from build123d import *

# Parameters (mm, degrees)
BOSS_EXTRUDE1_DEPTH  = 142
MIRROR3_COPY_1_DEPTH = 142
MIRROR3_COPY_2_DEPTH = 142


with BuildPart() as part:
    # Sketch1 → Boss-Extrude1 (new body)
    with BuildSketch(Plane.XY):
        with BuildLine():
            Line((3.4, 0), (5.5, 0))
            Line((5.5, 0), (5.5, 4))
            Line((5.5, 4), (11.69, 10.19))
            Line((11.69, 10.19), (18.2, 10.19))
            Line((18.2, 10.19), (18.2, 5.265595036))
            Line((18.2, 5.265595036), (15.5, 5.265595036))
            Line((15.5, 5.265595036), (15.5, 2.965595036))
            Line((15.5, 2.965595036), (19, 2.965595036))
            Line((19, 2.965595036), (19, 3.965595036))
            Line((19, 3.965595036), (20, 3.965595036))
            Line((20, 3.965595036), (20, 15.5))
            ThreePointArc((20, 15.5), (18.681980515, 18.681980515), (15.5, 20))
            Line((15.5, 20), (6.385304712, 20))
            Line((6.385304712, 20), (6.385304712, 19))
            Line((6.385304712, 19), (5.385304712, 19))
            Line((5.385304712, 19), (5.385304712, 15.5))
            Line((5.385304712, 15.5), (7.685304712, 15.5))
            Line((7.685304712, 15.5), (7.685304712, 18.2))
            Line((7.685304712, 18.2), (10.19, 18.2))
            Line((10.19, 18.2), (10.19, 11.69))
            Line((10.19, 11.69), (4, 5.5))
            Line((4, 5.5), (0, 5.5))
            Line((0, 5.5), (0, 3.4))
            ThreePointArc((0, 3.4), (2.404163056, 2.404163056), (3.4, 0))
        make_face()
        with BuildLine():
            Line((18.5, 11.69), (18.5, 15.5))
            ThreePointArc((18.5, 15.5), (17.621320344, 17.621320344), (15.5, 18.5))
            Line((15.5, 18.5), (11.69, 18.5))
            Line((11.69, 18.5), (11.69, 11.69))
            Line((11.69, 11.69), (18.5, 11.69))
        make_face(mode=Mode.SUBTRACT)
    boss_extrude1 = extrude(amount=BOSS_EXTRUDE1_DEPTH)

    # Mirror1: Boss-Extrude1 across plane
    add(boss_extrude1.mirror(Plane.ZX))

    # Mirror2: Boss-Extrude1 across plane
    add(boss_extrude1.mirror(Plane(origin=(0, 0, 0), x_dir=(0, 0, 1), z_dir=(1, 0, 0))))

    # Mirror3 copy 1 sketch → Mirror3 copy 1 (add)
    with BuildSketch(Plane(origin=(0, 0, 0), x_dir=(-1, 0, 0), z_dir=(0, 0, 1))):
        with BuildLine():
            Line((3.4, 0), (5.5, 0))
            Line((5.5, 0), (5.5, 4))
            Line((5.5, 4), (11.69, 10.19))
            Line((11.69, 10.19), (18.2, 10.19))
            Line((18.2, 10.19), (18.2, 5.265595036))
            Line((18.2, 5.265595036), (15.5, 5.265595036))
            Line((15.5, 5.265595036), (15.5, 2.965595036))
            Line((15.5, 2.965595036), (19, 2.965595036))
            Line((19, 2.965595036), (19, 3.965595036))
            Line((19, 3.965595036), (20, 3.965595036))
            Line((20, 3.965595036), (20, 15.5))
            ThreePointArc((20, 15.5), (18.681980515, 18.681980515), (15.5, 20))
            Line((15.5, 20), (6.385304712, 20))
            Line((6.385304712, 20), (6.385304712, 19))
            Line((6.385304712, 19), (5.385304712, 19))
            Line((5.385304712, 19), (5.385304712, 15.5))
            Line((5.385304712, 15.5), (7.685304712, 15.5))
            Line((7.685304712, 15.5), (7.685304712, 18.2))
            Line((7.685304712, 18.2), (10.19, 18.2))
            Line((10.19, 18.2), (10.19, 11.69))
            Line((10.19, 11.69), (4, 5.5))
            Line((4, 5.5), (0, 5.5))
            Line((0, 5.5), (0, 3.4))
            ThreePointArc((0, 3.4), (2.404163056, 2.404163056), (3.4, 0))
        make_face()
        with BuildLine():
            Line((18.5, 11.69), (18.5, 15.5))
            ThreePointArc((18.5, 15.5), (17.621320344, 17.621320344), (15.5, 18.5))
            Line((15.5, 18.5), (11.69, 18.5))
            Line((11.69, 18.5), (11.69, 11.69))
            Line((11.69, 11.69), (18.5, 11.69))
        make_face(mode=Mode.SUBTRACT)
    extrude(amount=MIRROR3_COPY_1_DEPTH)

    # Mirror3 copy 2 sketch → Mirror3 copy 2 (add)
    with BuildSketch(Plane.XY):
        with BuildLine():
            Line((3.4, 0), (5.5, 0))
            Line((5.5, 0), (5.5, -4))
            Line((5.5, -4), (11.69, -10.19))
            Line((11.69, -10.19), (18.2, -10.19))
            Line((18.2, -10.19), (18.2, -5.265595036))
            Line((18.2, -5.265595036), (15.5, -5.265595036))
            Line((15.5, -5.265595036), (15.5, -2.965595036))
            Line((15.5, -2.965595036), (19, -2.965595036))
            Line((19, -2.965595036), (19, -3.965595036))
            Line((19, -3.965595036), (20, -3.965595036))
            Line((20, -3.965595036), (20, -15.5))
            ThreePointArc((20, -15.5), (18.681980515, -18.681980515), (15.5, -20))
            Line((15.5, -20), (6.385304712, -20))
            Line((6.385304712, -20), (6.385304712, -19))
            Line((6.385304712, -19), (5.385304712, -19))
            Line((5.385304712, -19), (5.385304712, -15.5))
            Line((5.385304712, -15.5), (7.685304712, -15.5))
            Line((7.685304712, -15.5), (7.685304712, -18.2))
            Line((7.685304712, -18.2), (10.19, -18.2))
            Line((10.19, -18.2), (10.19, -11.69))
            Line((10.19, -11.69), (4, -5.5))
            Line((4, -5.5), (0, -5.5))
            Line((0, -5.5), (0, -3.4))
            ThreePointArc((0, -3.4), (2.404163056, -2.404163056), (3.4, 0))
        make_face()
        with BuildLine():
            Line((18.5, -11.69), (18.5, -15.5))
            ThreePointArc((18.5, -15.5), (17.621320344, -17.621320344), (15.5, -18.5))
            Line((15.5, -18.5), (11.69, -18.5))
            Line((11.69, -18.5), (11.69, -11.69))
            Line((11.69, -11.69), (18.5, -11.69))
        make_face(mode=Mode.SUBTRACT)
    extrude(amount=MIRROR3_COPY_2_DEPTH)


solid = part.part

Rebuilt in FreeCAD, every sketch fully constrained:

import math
import FreeCAD as App
import Part
import Sketcher
Q = App.Units.Quantity

doc = App.newDocument("Part")
body = doc.addObject("PartDesign::Body", "Body")

# Sketch on XY plane
sketch1 = body.newObject("Sketcher::SketchObject", "Sketch")
sketch1.AttachmentSupport = (doc.getObject("XY_Plane"), [""])
sketch1.MapMode = "FlatFace"
sketch1.addGeometry(Part.LineSegment(App.Vector(3.4, 0, 0), App.Vector(5.5, 0, 0)), False)
sketch1.addGeometry(Part.LineSegment(App.Vector(5.5, 0, 0), App.Vector(5.5, 4, 0)), False)
sketch1.addGeometry(Part.LineSegment(App.Vector(5.5, 4, 0), App.Vector(11.7, 10.2, 0)), False)
sketch1.addGeometry(Part.LineSegment(App.Vector(11.7, 10.2, 0), App.Vector(18.2, 10.2, 0)), False)
sketch1.addGeometry(Part.LineSegment(App.Vector(18.2, 10.2, 0), App.Vector(18.2, 5.3, 0)), False)
sketch1.addGeometry(Part.LineSegment(App.Vector(18.2, 5.3, 0), App.Vector(15.5, 5.3, 0)), False)
sketch1.addGeometry(Part.LineSegment(App.Vector(15.5, 5.3, 0), App.Vector(15.5, 3, 0)), False)
sketch1.addGeometry(Part.LineSegment(App.Vector(15.5, 3, 0), App.Vector(19, 3, 0)), False)
sketch1.addGeometry(Part.LineSegment(App.Vector(19, 3, 0), App.Vector(19, 4, 0)), False)
sketch1.addGeometry(Part.LineSegment(App.Vector(19, 4, 0), App.Vector(20, 4, 0)), False)
sketch1.addGeometry(Part.LineSegment(App.Vector(20, 4, 0), App.Vector(20, 15.5, 0)), False)
sketch1.addGeometry(Part.ArcOfCircle(Part.Circle(App.Vector(15.5, 15.5, 0), App.Vector(0, 0, 1), 4.5), math.radians(0), math.radians(90)), False)
sketch1.addGeometry(Part.LineSegment(App.Vector(15.5, 20, 0), App.Vector(6.4, 20, 0)), False)
sketch1.addGeometry(Part.LineSegment(App.Vector(6.4, 20, 0), App.Vector(6.4, 19, 0)), False)
sketch1.addGeometry(Part.LineSegment(App.Vector(6.4, 19, 0), App.Vector(5.4, 19, 0)), False)
sketch1.addGeometry(Part.LineSegment(App.Vector(5.4, 19, 0), App.Vector(5.4, 15.5, 0)), False)
sketch1.addGeometry(Part.LineSegment(App.Vector(5.4, 15.5, 0), App.Vector(7.7, 15.5, 0)), False)
sketch1.addGeometry(Part.LineSegment(App.Vector(7.7, 15.5, 0), App.Vector(7.7, 18.2, 0)), False)
sketch1.addGeometry(Part.LineSegment(App.Vector(7.7, 18.2, 0), App.Vector(10.2, 18.2, 0)), False)
sketch1.addGeometry(Part.LineSegment(App.Vector(10.2, 18.2, 0), App.Vector(10.2, 11.7, 0)), False)
sketch1.addGeometry(Part.LineSegment(App.Vector(10.2, 11.7, 0), App.Vector(4, 5.5, 0)), False)
sketch1.addGeometry(Part.LineSegment(App.Vector(4, 5.5, 0), App.Vector(0, 5.5, 0)), False)
sketch1.addGeometry(Part.LineSegment(App.Vector(0, 5.5, 0), App.Vector(0, 3.4, 0)), False)
sketch1.addGeometry(Part.ArcOfCircle(Part.Circle(App.Vector(0, 0, 0), App.Vector(0, 0, 1), 3.4), math.radians(0), math.radians(90)), False)
sketch1.addGeometry(Part.LineSegment(App.Vector(18.5, 15.5, 0), App.Vector(18.5, 11.7, 0)), False)
sketch1.addGeometry(Part.LineSegment(App.Vector(18.5, 11.7, 0), App.Vector(11.7, 11.7, 0)), False)
sketch1.addGeometry(Part.LineSegment(App.Vector(11.7, 11.7, 0), App.Vector(11.7, 18.5, 0)), False)
sketch1.addGeometry(Part.LineSegment(App.Vector(11.7, 18.5, 0), App.Vector(15.5, 18.5, 0)), False)
sketch1.addGeometry(Part.ArcOfCircle(Part.Circle(App.Vector(15.5, 15.5, 0), App.Vector(0, 0, 1), 3), math.radians(0), math.radians(90)), False)
sketch1.addConstraint(Sketcher.Constraint("Coincident", 0, 2, 1, 1))
sketch1.addConstraint(Sketcher.Constraint("Coincident", 1, 2, 2, 1))
sketch1.addConstraint(Sketcher.Constraint("Coincident", 2, 2, 3, 1))
sketch1.addConstraint(Sketcher.Constraint("Coincident", 3, 2, 4, 1))
sketch1.addConstraint(Sketcher.Constraint("Coincident", 4, 2, 5, 1))
sketch1.addConstraint(Sketcher.Constraint("Coincident", 5, 2, 6, 1))
sketch1.addConstraint(Sketcher.Constraint("Coincident", 6, 2, 7, 1))
sketch1.addConstraint(Sketcher.Constraint("Coincident", 7, 2, 8, 1))
sketch1.addConstraint(Sketcher.Constraint("Coincident", 8, 2, 9, 1))
sketch1.addConstraint(Sketcher.Constraint("Coincident", 9, 2, 10, 1))
sketch1.addConstraint(Sketcher.Constraint("Tangent", 10, 2, 11, 1))
sketch1.addConstraint(Sketcher.Constraint("Tangent", 11, 2, 12, 1))
sketch1.addConstraint(Sketcher.Constraint("Coincident", 12, 2, 13, 1))
sketch1.addConstraint(Sketcher.Constraint("Coincident", 13, 2, 14, 1))
sketch1.addConstraint(Sketcher.Constraint("Coincident", 14, 2, 15, 1))
sketch1.addConstraint(Sketcher.Constraint("Coincident", 15, 2, 16, 1))
sketch1.addConstraint(Sketcher.Constraint("Coincident", 16, 2, 17, 1))
sketch1.addConstraint(Sketcher.Constraint("Coincident", 17, 2, 18, 1))
sketch1.addConstraint(Sketcher.Constraint("Coincident", 18, 2, 19, 1))
sketch1.addConstraint(Sketcher.Constraint("Coincident", 19, 2, 20, 1))
sketch1.addConstraint(Sketcher.Constraint("Coincident", 20, 2, 21, 1))
sketch1.addConstraint(Sketcher.Constraint("Coincident", 21, 2, 22, 1))
sketch1.addConstraint(Sketcher.Constraint("Coincident", 22, 2, 23, 2))
sketch1.addConstraint(Sketcher.Constraint("Coincident", 23, 1, 0, 1))
sketch1.addConstraint(Sketcher.Constraint("Coincident", 24, 2, 25, 1))
sketch1.addConstraint(Sketcher.Constraint("Coincident", 25, 2, 26, 1))
sketch1.addConstraint(Sketcher.Constraint("Coincident", 26, 2, 27, 1))
sketch1.addConstraint(Sketcher.Constraint("Tangent", 27, 2, 28, 2))
sketch1.addConstraint(Sketcher.Constraint("Tangent", 28, 1, 24, 1))
sketch1.addConstraint(Sketcher.Constraint("Horizontal", 0))
sketch1.addConstraint(Sketcher.Constraint("Vertical", 1))
sketch1.addConstraint(Sketcher.Constraint("Horizontal", 3))
sketch1.addConstraint(Sketcher.Constraint("Vertical", 4))
sketch1.addConstraint(Sketcher.Constraint("Horizontal", 5))
sketch1.addConstraint(Sketcher.Constraint("Vertical", 6))
sketch1.addConstraint(Sketcher.Constraint("Horizontal", 7))
sketch1.addConstraint(Sketcher.Constraint("Vertical", 8))
sketch1.addConstraint(Sketcher.Constraint("Horizontal", 9))
sketch1.addConstraint(Sketcher.Constraint("Vertical", 10))
sketch1.addConstraint(Sketcher.Constraint("Horizontal", 12))
sketch1.addConstraint(Sketcher.Constraint("Vertical", 13))
sketch1.addConstraint(Sketcher.Constraint("Horizontal", 14))
sketch1.addConstraint(Sketcher.Constraint("Vertical", 15))
sketch1.addConstraint(Sketcher.Constraint("Horizontal", 16))
sketch1.addConstraint(Sketcher.Constraint("Vertical", 17))
sketch1.addConstraint(Sketcher.Constraint("Horizontal", 18))
sketch1.addConstraint(Sketcher.Constraint("Vertical", 19))
sketch1.addConstraint(Sketcher.Constraint("Horizontal", 21))
sketch1.addConstraint(Sketcher.Constraint("Vertical", 22))
sketch1.addConstraint(Sketcher.Constraint("Vertical", 24))
sketch1.addConstraint(Sketcher.Constraint("Horizontal", 25))
sketch1.addConstraint(Sketcher.Constraint("Vertical", 26))
sketch1.addConstraint(Sketcher.Constraint("Horizontal", 27))
sketch1.addConstraint(Sketcher.Constraint("Coincident", 23, 3, -1, 1))
sketch1.addConstraint(Sketcher.Constraint("Coincident", 28, 3, 11, 3))
sketch1.addConstraint(Sketcher.Constraint("PointOnObject", 0, 2, -1))
sketch1.addConstraint(Sketcher.Constraint("PointOnObject", 21, 2, -2))
sketch1.addConstraint(Sketcher.Constraint("Parallel", 2, 20))
sketch1.addConstraint(Sketcher.Constraint("Horizontal", 10, 2, 15, 2))
sketch1.addConstraint(Sketcher.Constraint("Horizontal", 19, 2, 24, 2))
sketch1.addConstraint(Sketcher.Constraint("Vertical", 28, 3, 5, 2))
sketch1.addConstraint(Sketcher.Constraint("Vertical", 2, 2, 25, 2))
sketch1.addConstraint(Sketcher.Constraint("Equal", 9, 14))
sketch1.addConstraint(Sketcher.Constraint("Equal", 21, 1))
sketch1.addConstraint(Sketcher.Constraint("Equal", 16, 6))
sketch1.addConstraint(Sketcher.Constraint("Equal", 14, 8))
sketch1.addConstraint(Sketcher.Constraint("Equal", 8, 13))
sketch1.addConstraint(Sketcher.Constraint("Equal", 5, 17))
sketch1.addConstraint(Sketcher.Constraint("Equal", 3, 19))
sketch1.addConstraint(Sketcher.Constraint("Equal", 0, 22))
sketch1.addConstraint(Sketcher.Constraint("Equal", 2, 20))
sketch1.addConstraint(Sketcher.Constraint("Radius", 28, 3.0))
sketch1.addConstraint(Sketcher.Constraint("Radius", 11, 4.5))
sketch1.addConstraint(Sketcher.Constraint("Radius", 23, 3.4))
sketch1.addConstraint(Sketcher.Constraint("DistanceX", 9, 1, 9, 2, 1.0))
sketch1.addConstraint(Sketcher.Constraint("DistanceX", 21, 2, 21, 1, 4.0))
sketch1.addConstraint(Sketcher.Constraint("Angle", 2, Q("45 deg")))
sketch1.addConstraint(Sketcher.Constraint("DistanceX", 0, 1, 0, 2, 2.1))
sketch1.addConstraint(Sketcher.Constraint("DistanceX", 5, 2, 5, 1, 2.7))
sketch1.addConstraint(Sketcher.Constraint("DistanceX", 16, 1, 16, 2, 2.3))
sketch1.addConstraint(Sketcher.Constraint("DistanceX", -1, 1, 7, 2, 19.0))
sketch1.addConstraint(Sketcher.Constraint("DistanceX", 3, 1, 3, 2, 6.51))
sketch1.addConstraint(Sketcher.Constraint("DistanceX", 12, 2, 12, 1, 9.114695))
sketch1.addConstraint(Sketcher.Constraint("DistanceY", 4, 2, 4, 1, 4.924405))
pad1 = body.newObject("PartDesign::Pad", "Pad")
pad1.Profile = sketch1
pad1.Length = 142
doc.recompute()

mirrored = body.newObject("PartDesign::Mirrored", "Mirrored")
mirrored.Originals = [pad1]
mirrored.MirrorPlane = (doc.getObject("XZ_Plane"), [""])
body.Tip = mirrored
doc.recompute()

mirrored2 = body.newObject("PartDesign::Mirrored", "Mirrored001")
mirrored2.Originals = [pad1]
mirrored2.MirrorPlane = (doc.getObject("YZ_Plane"), [""])
body.Tip = mirrored2

# Sketch on XY plane
sketch2 = body.newObject("Sketcher::SketchObject", "Sketch001")
sketch2.AttachmentSupport = (doc.getObject("XY_Plane"), [""])
sketch2.MapMode = "FlatFace"
sketch2.addGeometry(Part.LineSegment(App.Vector(-3.4, 0, 0), App.Vector(-5.5, 0, 0)), False)
sketch2.addGeometry(Part.LineSegment(App.Vector(-5.5, 0, 0), App.Vector(-5.5, -4, 0)), False)
sketch2.addGeometry(Part.LineSegment(App.Vector(-5.5, -4, 0), App.Vector(-11.7, -10.2, 0)), False)
sketch2.addGeometry(Part.LineSegment(App.Vector(-11.7, -10.2, 0), App.Vector(-18.2, -10.2, 0)), False)
sketch2.addGeometry(Part.LineSegment(App.Vector(-18.2, -10.2, 0), App.Vector(-18.2, -5.3, 0)), False)
sketch2.addGeometry(Part.LineSegment(App.Vector(-18.2, -5.3, 0), App.Vector(-15.5, -5.3, 0)), False)
sketch2.addGeometry(Part.LineSegment(App.Vector(-15.5, -5.3, 0), App.Vector(-15.5, -3, 0)), False)
sketch2.addGeometry(Part.LineSegment(App.Vector(-15.5, -3, 0), App.Vector(-19, -3, 0)), False)
sketch2.addGeometry(Part.LineSegment(App.Vector(-19, -3, 0), App.Vector(-19, -4, 0)), False)
sketch2.addGeometry(Part.LineSegment(App.Vector(-19, -4, 0), App.Vector(-20, -4, 0)), False)
sketch2.addGeometry(Part.LineSegment(App.Vector(-20, -4, 0), App.Vector(-20, -15.5, 0)), False)
sketch2.addGeometry(Part.ArcOfCircle(Part.Circle(App.Vector(-15.5, -15.5, 0), App.Vector(0, 0, 1), 4.5), math.radians(-180), math.radians(-90)), False)
sketch2.addGeometry(Part.LineSegment(App.Vector(-15.5, -20, 0), App.Vector(-6.4, -20, 0)), False)
sketch2.addGeometry(Part.LineSegment(App.Vector(-6.4, -20, 0), App.Vector(-6.4, -19, 0)), False)
sketch2.addGeometry(Part.LineSegment(App.Vector(-6.4, -19, 0), App.Vector(-5.4, -19, 0)), False)
sketch2.addGeometry(Part.LineSegment(App.Vector(-5.4, -19, 0), App.Vector(-5.4, -15.5, 0)), False)
sketch2.addGeometry(Part.LineSegment(App.Vector(-5.4, -15.5, 0), App.Vector(-7.7, -15.5, 0)), False)
sketch2.addGeometry(Part.LineSegment(App.Vector(-7.7, -15.5, 0), App.Vector(-7.7, -18.2, 0)), False)
sketch2.addGeometry(Part.LineSegment(App.Vector(-7.7, -18.2, 0), App.Vector(-10.2, -18.2, 0)), False)
sketch2.addGeometry(Part.LineSegment(App.Vector(-10.2, -18.2, 0), App.Vector(-10.2, -11.7, 0)), False)
sketch2.addGeometry(Part.LineSegment(App.Vector(-10.2, -11.7, 0), App.Vector(-4, -5.5, 0)), False)
sketch2.addGeometry(Part.LineSegment(App.Vector(-4, -5.5, 0), App.Vector(0, -5.5, 0)), False)
sketch2.addGeometry(Part.LineSegment(App.Vector(0, -5.5, 0), App.Vector(0, -3.4, 0)), False)
sketch2.addGeometry(Part.ArcOfCircle(Part.Circle(App.Vector(0, 0, 0), App.Vector(0, 0, 1), 3.4), math.radians(180), math.radians(270)), False)
sketch2.addGeometry(Part.LineSegment(App.Vector(-18.5, -15.5, 0), App.Vector(-18.5, -11.7, 0)), False)
sketch2.addGeometry(Part.LineSegment(App.Vector(-18.5, -11.7, 0), App.Vector(-11.7, -11.7, 0)), False)
sketch2.addGeometry(Part.LineSegment(App.Vector(-11.7, -11.7, 0), App.Vector(-11.7, -18.5, 0)), False)
sketch2.addGeometry(Part.LineSegment(App.Vector(-11.7, -18.5, 0), App.Vector(-15.5, -18.5, 0)), False)
sketch2.addGeometry(Part.ArcOfCircle(Part.Circle(App.Vector(-15.5, -15.5, 0), App.Vector(0, 0, 1), 3), math.radians(180), math.radians(270)), False)
sketch2.addConstraint(Sketcher.Constraint("Coincident", 0, 2, 1, 1))
sketch2.addConstraint(Sketcher.Constraint("Coincident", 1, 2, 2, 1))
sketch2.addConstraint(Sketcher.Constraint("Coincident", 2, 2, 3, 1))
sketch2.addConstraint(Sketcher.Constraint("Coincident", 3, 2, 4, 1))
sketch2.addConstraint(Sketcher.Constraint("Coincident", 4, 2, 5, 1))
sketch2.addConstraint(Sketcher.Constraint("Coincident", 5, 2, 6, 1))
sketch2.addConstraint(Sketcher.Constraint("Coincident", 6, 2, 7, 1))
sketch2.addConstraint(Sketcher.Constraint("Coincident", 7, 2, 8, 1))
sketch2.addConstraint(Sketcher.Constraint("Coincident", 8, 2, 9, 1))
sketch2.addConstraint(Sketcher.Constraint("Coincident", 9, 2, 10, 1))
sketch2.addConstraint(Sketcher.Constraint("Tangent", 10, 2, 11, 1))
sketch2.addConstraint(Sketcher.Constraint("Tangent", 11, 2, 12, 1))
sketch2.addConstraint(Sketcher.Constraint("Coincident", 12, 2, 13, 1))
sketch2.addConstraint(Sketcher.Constraint("Coincident", 13, 2, 14, 1))
sketch2.addConstraint(Sketcher.Constraint("Coincident", 14, 2, 15, 1))
sketch2.addConstraint(Sketcher.Constraint("Coincident", 15, 2, 16, 1))
sketch2.addConstraint(Sketcher.Constraint("Coincident", 16, 2, 17, 1))
sketch2.addConstraint(Sketcher.Constraint("Coincident", 17, 2, 18, 1))
sketch2.addConstraint(Sketcher.Constraint("Coincident", 18, 2, 19, 1))
sketch2.addConstraint(Sketcher.Constraint("Coincident", 19, 2, 20, 1))
sketch2.addConstraint(Sketcher.Constraint("Coincident", 20, 2, 21, 1))
sketch2.addConstraint(Sketcher.Constraint("Coincident", 21, 2, 22, 1))
sketch2.addConstraint(Sketcher.Constraint("Coincident", 22, 2, 23, 2))
sketch2.addConstraint(Sketcher.Constraint("Coincident", 23, 1, 0, 1))
sketch2.addConstraint(Sketcher.Constraint("Coincident", 24, 2, 25, 1))
sketch2.addConstraint(Sketcher.Constraint("Coincident", 25, 2, 26, 1))
sketch2.addConstraint(Sketcher.Constraint("Coincident", 26, 2, 27, 1))
sketch2.addConstraint(Sketcher.Constraint("Tangent", 27, 2, 28, 2))
sketch2.addConstraint(Sketcher.Constraint("Tangent", 28, 1, 24, 1))
sketch2.addConstraint(Sketcher.Constraint("Horizontal", 0))
sketch2.addConstraint(Sketcher.Constraint("Vertical", 1))
sketch2.addConstraint(Sketcher.Constraint("Horizontal", 3))
sketch2.addConstraint(Sketcher.Constraint("Vertical", 4))
sketch2.addConstraint(Sketcher.Constraint("Horizontal", 5))
sketch2.addConstraint(Sketcher.Constraint("Vertical", 6))
sketch2.addConstraint(Sketcher.Constraint("Horizontal", 7))
sketch2.addConstraint(Sketcher.Constraint("Vertical", 8))
sketch2.addConstraint(Sketcher.Constraint("Horizontal", 9))
sketch2.addConstraint(Sketcher.Constraint("Vertical", 10))
sketch2.addConstraint(Sketcher.Constraint("Horizontal", 12))
sketch2.addConstraint(Sketcher.Constraint("Vertical", 13))
sketch2.addConstraint(Sketcher.Constraint("Horizontal", 14))
sketch2.addConstraint(Sketcher.Constraint("Vertical", 15))
sketch2.addConstraint(Sketcher.Constraint("Horizontal", 16))
sketch2.addConstraint(Sketcher.Constraint("Vertical", 17))
sketch2.addConstraint(Sketcher.Constraint("Horizontal", 18))
sketch2.addConstraint(Sketcher.Constraint("Vertical", 19))
sketch2.addConstraint(Sketcher.Constraint("Horizontal", 21))
sketch2.addConstraint(Sketcher.Constraint("Vertical", 22))
sketch2.addConstraint(Sketcher.Constraint("Vertical", 24))
sketch2.addConstraint(Sketcher.Constraint("Horizontal", 25))
sketch2.addConstraint(Sketcher.Constraint("Vertical", 26))
sketch2.addConstraint(Sketcher.Constraint("Horizontal", 27))
sketch2.addConstraint(Sketcher.Constraint("Coincident", 23, 3, -1, 1))
sketch2.addConstraint(Sketcher.Constraint("Coincident", 28, 3, 11, 3))
sketch2.addConstraint(Sketcher.Constraint("PointOnObject", 0, 2, -1))
sketch2.addConstraint(Sketcher.Constraint("PointOnObject", 21, 2, -2))
sketch2.addConstraint(Sketcher.Constraint("Parallel", 2, 20))
sketch2.addConstraint(Sketcher.Constraint("Horizontal", 10, 2, 15, 2))
sketch2.addConstraint(Sketcher.Constraint("Horizontal", 19, 2, 24, 2))
sketch2.addConstraint(Sketcher.Constraint("Vertical", 28, 3, 5, 2))
sketch2.addConstraint(Sketcher.Constraint("Vertical", 2, 2, 25, 2))
sketch2.addConstraint(Sketcher.Constraint("Equal", 9, 14))
sketch2.addConstraint(Sketcher.Constraint("Equal", 21, 1))
sketch2.addConstraint(Sketcher.Constraint("Equal", 16, 6))
sketch2.addConstraint(Sketcher.Constraint("Equal", 14, 8))
sketch2.addConstraint(Sketcher.Constraint("Equal", 8, 13))
sketch2.addConstraint(Sketcher.Constraint("Equal", 5, 17))
sketch2.addConstraint(Sketcher.Constraint("Equal", 3, 19))
sketch2.addConstraint(Sketcher.Constraint("Equal", 0, 22))
sketch2.addConstraint(Sketcher.Constraint("Equal", 2, 20))
sketch2.addConstraint(Sketcher.Constraint("Radius", 28, 3.0))
sketch2.addConstraint(Sketcher.Constraint("Radius", 11, 4.5))
sketch2.addConstraint(Sketcher.Constraint("Radius", 23, 3.4))
sketch2.addConstraint(Sketcher.Constraint("DistanceX", 9, 2, 9, 1, 1.0))
sketch2.addConstraint(Sketcher.Constraint("DistanceX", 21, 1, 21, 2, 4.0))
sketch2.addConstraint(Sketcher.Constraint("Angle", 2, Q("-135 deg")))
sketch2.addConstraint(Sketcher.Constraint("DistanceX", 0, 2, 0, 1, 2.1))
sketch2.addConstraint(Sketcher.Constraint("DistanceX", 5, 1, 5, 2, 2.7))
sketch2.addConstraint(Sketcher.Constraint("DistanceX", 16, 2, 16, 1, 2.3))
sketch2.addConstraint(Sketcher.Constraint("DistanceX", 7, 2, -1, 1, 19.0))
sketch2.addConstraint(Sketcher.Constraint("DistanceX", 3, 2, 3, 1, 6.51))
sketch2.addConstraint(Sketcher.Constraint("DistanceX", 12, 1, 12, 2, 9.114695))
sketch2.addConstraint(Sketcher.Constraint("DistanceY", 4, 1, 4, 2, 4.924405))
pad2 = body.newObject("PartDesign::Pad", "Pad001")
pad2.Profile = sketch2
pad2.Length = 142

# Sketch on XY plane
sketch3 = body.newObject("Sketcher::SketchObject", "Sketch002")
sketch3.AttachmentSupport = (doc.getObject("XY_Plane"), [""])
sketch3.MapMode = "FlatFace"
sketch3.addGeometry(Part.LineSegment(App.Vector(5.5, 0, 0), App.Vector(3.4, 0, 0)), False)
sketch3.addGeometry(Part.ArcOfCircle(Part.Circle(App.Vector(0, 0, 0), App.Vector(0, 0, 1), 3.4), math.radians(-90), math.radians(0)), False)
sketch3.addGeometry(Part.LineSegment(App.Vector(0, -3.4, 0), App.Vector(0, -5.5, 0)), False)
sketch3.addGeometry(Part.LineSegment(App.Vector(0, -5.5, 0), App.Vector(4, -5.5, 0)), False)
sketch3.addGeometry(Part.LineSegment(App.Vector(4, -5.5, 0), App.Vector(10.2, -11.7, 0)), False)
sketch3.addGeometry(Part.LineSegment(App.Vector(10.2, -11.7, 0), App.Vector(10.2, -18.2, 0)), False)
sketch3.addGeometry(Part.LineSegment(App.Vector(10.2, -18.2, 0), App.Vector(7.7, -18.2, 0)), False)
sketch3.addGeometry(Part.LineSegment(App.Vector(7.7, -18.2, 0), App.Vector(7.7, -15.5, 0)), False)
sketch3.addGeometry(Part.LineSegment(App.Vector(7.7, -15.5, 0), App.Vector(5.4, -15.5, 0)), False)
sketch3.addGeometry(Part.LineSegment(App.Vector(5.4, -15.5, 0), App.Vector(5.4, -19, 0)), False)
sketch3.addGeometry(Part.LineSegment(App.Vector(5.4, -19, 0), App.Vector(6.4, -19, 0)), False)
sketch3.addGeometry(Part.LineSegment(App.Vector(6.4, -19, 0), App.Vector(6.4, -20, 0)), False)
sketch3.addGeometry(Part.LineSegment(App.Vector(6.4, -20, 0), App.Vector(15.5, -20, 0)), False)
sketch3.addGeometry(Part.ArcOfCircle(Part.Circle(App.Vector(15.5, -15.5, 0), App.Vector(0, 0, 1), 4.5), math.radians(-90), math.radians(0)), False)
sketch3.addGeometry(Part.LineSegment(App.Vector(20, -15.5, 0), App.Vector(20, -4, 0)), False)
sketch3.addGeometry(Part.LineSegment(App.Vector(20, -4, 0), App.Vector(19, -4, 0)), False)
sketch3.addGeometry(Part.LineSegment(App.Vector(19, -4, 0), App.Vector(19, -3, 0)), False)
sketch3.addGeometry(Part.LineSegment(App.Vector(19, -3, 0), App.Vector(15.5, -3, 0)), False)
sketch3.addGeometry(Part.LineSegment(App.Vector(15.5, -3, 0), App.Vector(15.5, -5.3, 0)), False)
sketch3.addGeometry(Part.LineSegment(App.Vector(15.5, -5.3, 0), App.Vector(18.2, -5.3, 0)), False)
sketch3.addGeometry(Part.LineSegment(App.Vector(18.2, -5.3, 0), App.Vector(18.2, -10.2, 0)), False)
sketch3.addGeometry(Part.LineSegment(App.Vector(18.2, -10.2, 0), App.Vector(11.7, -10.2, 0)), False)
sketch3.addGeometry(Part.LineSegment(App.Vector(11.7, -10.2, 0), App.Vector(5.5, -4, 0)), False)
sketch3.addGeometry(Part.LineSegment(App.Vector(5.5, -4, 0), App.Vector(5.5, 0, 0)), False)
sketch3.addGeometry(Part.LineSegment(App.Vector(18.5, -11.7, 0), App.Vector(18.5, -15.5, 0)), False)
sketch3.addGeometry(Part.ArcOfCircle(Part.Circle(App.Vector(15.5, -15.5, 0), App.Vector(0, 0, 1), 3), math.radians(-90), math.radians(0)), False)
sketch3.addGeometry(Part.LineSegment(App.Vector(15.5, -18.5, 0), App.Vector(11.7, -18.5, 0)), False)
sketch3.addGeometry(Part.LineSegment(App.Vector(11.7, -18.5, 0), App.Vector(11.7, -11.7, 0)), False)
sketch3.addGeometry(Part.LineSegment(App.Vector(11.7, -11.7, 0), App.Vector(18.5, -11.7, 0)), False)
sketch3.addConstraint(Sketcher.Constraint("Coincident", 0, 2, 1, 2))
sketch3.addConstraint(Sketcher.Constraint("Coincident", 1, 1, 2, 1))
sketch3.addConstraint(Sketcher.Constraint("Coincident", 2, 2, 3, 1))
sketch3.addConstraint(Sketcher.Constraint("Coincident", 3, 2, 4, 1))
sketch3.addConstraint(Sketcher.Constraint("Coincident", 4, 2, 5, 1))
sketch3.addConstraint(Sketcher.Constraint("Coincident", 5, 2, 6, 1))
sketch3.addConstraint(Sketcher.Constraint("Coincident", 6, 2, 7, 1))
sketch3.addConstraint(Sketcher.Constraint("Coincident", 7, 2, 8, 1))
sketch3.addConstraint(Sketcher.Constraint("Coincident", 8, 2, 9, 1))
sketch3.addConstraint(Sketcher.Constraint("Coincident", 9, 2, 10, 1))
sketch3.addConstraint(Sketcher.Constraint("Coincident", 10, 2, 11, 1))
sketch3.addConstraint(Sketcher.Constraint("Coincident", 11, 2, 12, 1))
sketch3.addConstraint(Sketcher.Constraint("Tangent", 12, 2, 13, 1))
sketch3.addConstraint(Sketcher.Constraint("Tangent", 13, 2, 14, 1))
sketch3.addConstraint(Sketcher.Constraint("Coincident", 14, 2, 15, 1))
sketch3.addConstraint(Sketcher.Constraint("Coincident", 15, 2, 16, 1))
sketch3.addConstraint(Sketcher.Constraint("Coincident", 16, 2, 17, 1))
sketch3.addConstraint(Sketcher.Constraint("Coincident", 17, 2, 18, 1))
sketch3.addConstraint(Sketcher.Constraint("Coincident", 18, 2, 19, 1))
sketch3.addConstraint(Sketcher.Constraint("Coincident", 19, 2, 20, 1))
sketch3.addConstraint(Sketcher.Constraint("Coincident", 20, 2, 21, 1))
sketch3.addConstraint(Sketcher.Constraint("Coincident", 21, 2, 22, 1))
sketch3.addConstraint(Sketcher.Constraint("Coincident", 22, 2, 23, 1))
sketch3.addConstraint(Sketcher.Constraint("Coincident", 23, 2, 0, 1))
sketch3.addConstraint(Sketcher.Constraint("Tangent", 24, 2, 25, 2))
sketch3.addConstraint(Sketcher.Constraint("Tangent", 25, 1, 26, 1))
sketch3.addConstraint(Sketcher.Constraint("Coincident", 26, 2, 27, 1))
sketch3.addConstraint(Sketcher.Constraint("Coincident", 27, 2, 28, 1))
sketch3.addConstraint(Sketcher.Constraint("Coincident", 28, 2, 24, 1))
sketch3.addConstraint(Sketcher.Constraint("Horizontal", 0))
sketch3.addConstraint(Sketcher.Constraint("Vertical", 2))
sketch3.addConstraint(Sketcher.Constraint("Horizontal", 3))
sketch3.addConstraint(Sketcher.Constraint("Vertical", 5))
sketch3.addConstraint(Sketcher.Constraint("Horizontal", 6))
sketch3.addConstraint(Sketcher.Constraint("Vertical", 7))
sketch3.addConstraint(Sketcher.Constraint("Horizontal", 8))
sketch3.addConstraint(Sketcher.Constraint("Vertical", 9))
sketch3.addConstraint(Sketcher.Constraint("Horizontal", 10))
sketch3.addConstraint(Sketcher.Constraint("Vertical", 11))
sketch3.addConstraint(Sketcher.Constraint("Horizontal", 12))
sketch3.addConstraint(Sketcher.Constraint("Vertical", 14))
sketch3.addConstraint(Sketcher.Constraint("Horizontal", 15))
sketch3.addConstraint(Sketcher.Constraint("Vertical", 16))
sketch3.addConstraint(Sketcher.Constraint("Horizontal", 17))
sketch3.addConstraint(Sketcher.Constraint("Vertical", 18))
sketch3.addConstraint(Sketcher.Constraint("Horizontal", 19))
sketch3.addConstraint(Sketcher.Constraint("Vertical", 20))
sketch3.addConstraint(Sketcher.Constraint("Horizontal", 21))
sketch3.addConstraint(Sketcher.Constraint("Vertical", 23))
sketch3.addConstraint(Sketcher.Constraint("Vertical", 24))
sketch3.addConstraint(Sketcher.Constraint("Horizontal", 26))
sketch3.addConstraint(Sketcher.Constraint("Vertical", 27))
sketch3.addConstraint(Sketcher.Constraint("Horizontal", 28))
sketch3.addConstraint(Sketcher.Constraint("Coincident", 1, 3, -1, 1))
sketch3.addConstraint(Sketcher.Constraint("Coincident", 25, 3, 13, 3))
sketch3.addConstraint(Sketcher.Constraint("PointOnObject", 0, 2, -1))
sketch3.addConstraint(Sketcher.Constraint("PointOnObject", 1, 1, -2))
sketch3.addConstraint(Sketcher.Constraint("Parallel", 4, 22))
sketch3.addConstraint(Sketcher.Constraint("Horizontal", 25, 3, 7, 2))
sketch3.addConstraint(Sketcher.Constraint("Horizontal", 4, 2, 27, 2))
sketch3.addConstraint(Sketcher.Constraint("Vertical", 12, 2, 17, 2))
sketch3.addConstraint(Sketcher.Constraint("Vertical", 21, 2, 26, 2))
sketch3.addConstraint(Sketcher.Constraint("Equal", 10, 15))
sketch3.addConstraint(Sketcher.Constraint("Equal", 0, 2))
sketch3.addConstraint(Sketcher.Constraint("Equal", 21, 5))
sketch3.addConstraint(Sketcher.Constraint("Equal", 19, 7))
sketch3.addConstraint(Sketcher.Constraint("Equal", 17, 9))
sketch3.addConstraint(Sketcher.Constraint("Equal", 11, 16))
sketch3.addConstraint(Sketcher.Constraint("Equal", 8, 18))
sketch3.addConstraint(Sketcher.Constraint("Equal", 3, 23))
sketch3.addConstraint(Sketcher.Constraint("Equal", 4, 22))
sketch3.addConstraint(Sketcher.Constraint("Radius", 25, 3.0))
sketch3.addConstraint(Sketcher.Constraint("Radius", 1, 3.4))
sketch3.addConstraint(Sketcher.Constraint("Radius", 13, 4.5))
sketch3.addConstraint(Sketcher.Constraint("DistanceX", 3, 1, 3, 2, 4.0))
sketch3.addConstraint(Sketcher.Constraint("DistanceX", 10, 1, 10, 2, 1.0))
sketch3.addConstraint(Sketcher.Constraint("Angle", 4, Q("-45 deg")))
sketch3.addConstraint(Sketcher.Constraint("DistanceX", 0, 2, 0, 1, 2.1))
sketch3.addConstraint(Sketcher.Constraint("DistanceX", 8, 2, 8, 1, 2.3))
sketch3.addConstraint(Sketcher.Constraint("DistanceX", 19, 1, 19, 2, 2.7))
sketch3.addConstraint(Sketcher.Constraint("DistanceY", 9, 2, -1, 1, 19.0))
sketch3.addConstraint(Sketcher.Constraint("DistanceX", 21, 2, 21, 1, 6.51))
sketch3.addConstraint(Sketcher.Constraint("DistanceX", 6, 2, 6, 1, 2.504695))
sketch3.addConstraint(Sketcher.Constraint("DistanceY", 14, 1, 14, 2, 11.534405))
pad3 = body.newObject("PartDesign::Pad", "Pad002")
pad3.Profile = sketch3
pad3.Length = 142

doc.recompute()
